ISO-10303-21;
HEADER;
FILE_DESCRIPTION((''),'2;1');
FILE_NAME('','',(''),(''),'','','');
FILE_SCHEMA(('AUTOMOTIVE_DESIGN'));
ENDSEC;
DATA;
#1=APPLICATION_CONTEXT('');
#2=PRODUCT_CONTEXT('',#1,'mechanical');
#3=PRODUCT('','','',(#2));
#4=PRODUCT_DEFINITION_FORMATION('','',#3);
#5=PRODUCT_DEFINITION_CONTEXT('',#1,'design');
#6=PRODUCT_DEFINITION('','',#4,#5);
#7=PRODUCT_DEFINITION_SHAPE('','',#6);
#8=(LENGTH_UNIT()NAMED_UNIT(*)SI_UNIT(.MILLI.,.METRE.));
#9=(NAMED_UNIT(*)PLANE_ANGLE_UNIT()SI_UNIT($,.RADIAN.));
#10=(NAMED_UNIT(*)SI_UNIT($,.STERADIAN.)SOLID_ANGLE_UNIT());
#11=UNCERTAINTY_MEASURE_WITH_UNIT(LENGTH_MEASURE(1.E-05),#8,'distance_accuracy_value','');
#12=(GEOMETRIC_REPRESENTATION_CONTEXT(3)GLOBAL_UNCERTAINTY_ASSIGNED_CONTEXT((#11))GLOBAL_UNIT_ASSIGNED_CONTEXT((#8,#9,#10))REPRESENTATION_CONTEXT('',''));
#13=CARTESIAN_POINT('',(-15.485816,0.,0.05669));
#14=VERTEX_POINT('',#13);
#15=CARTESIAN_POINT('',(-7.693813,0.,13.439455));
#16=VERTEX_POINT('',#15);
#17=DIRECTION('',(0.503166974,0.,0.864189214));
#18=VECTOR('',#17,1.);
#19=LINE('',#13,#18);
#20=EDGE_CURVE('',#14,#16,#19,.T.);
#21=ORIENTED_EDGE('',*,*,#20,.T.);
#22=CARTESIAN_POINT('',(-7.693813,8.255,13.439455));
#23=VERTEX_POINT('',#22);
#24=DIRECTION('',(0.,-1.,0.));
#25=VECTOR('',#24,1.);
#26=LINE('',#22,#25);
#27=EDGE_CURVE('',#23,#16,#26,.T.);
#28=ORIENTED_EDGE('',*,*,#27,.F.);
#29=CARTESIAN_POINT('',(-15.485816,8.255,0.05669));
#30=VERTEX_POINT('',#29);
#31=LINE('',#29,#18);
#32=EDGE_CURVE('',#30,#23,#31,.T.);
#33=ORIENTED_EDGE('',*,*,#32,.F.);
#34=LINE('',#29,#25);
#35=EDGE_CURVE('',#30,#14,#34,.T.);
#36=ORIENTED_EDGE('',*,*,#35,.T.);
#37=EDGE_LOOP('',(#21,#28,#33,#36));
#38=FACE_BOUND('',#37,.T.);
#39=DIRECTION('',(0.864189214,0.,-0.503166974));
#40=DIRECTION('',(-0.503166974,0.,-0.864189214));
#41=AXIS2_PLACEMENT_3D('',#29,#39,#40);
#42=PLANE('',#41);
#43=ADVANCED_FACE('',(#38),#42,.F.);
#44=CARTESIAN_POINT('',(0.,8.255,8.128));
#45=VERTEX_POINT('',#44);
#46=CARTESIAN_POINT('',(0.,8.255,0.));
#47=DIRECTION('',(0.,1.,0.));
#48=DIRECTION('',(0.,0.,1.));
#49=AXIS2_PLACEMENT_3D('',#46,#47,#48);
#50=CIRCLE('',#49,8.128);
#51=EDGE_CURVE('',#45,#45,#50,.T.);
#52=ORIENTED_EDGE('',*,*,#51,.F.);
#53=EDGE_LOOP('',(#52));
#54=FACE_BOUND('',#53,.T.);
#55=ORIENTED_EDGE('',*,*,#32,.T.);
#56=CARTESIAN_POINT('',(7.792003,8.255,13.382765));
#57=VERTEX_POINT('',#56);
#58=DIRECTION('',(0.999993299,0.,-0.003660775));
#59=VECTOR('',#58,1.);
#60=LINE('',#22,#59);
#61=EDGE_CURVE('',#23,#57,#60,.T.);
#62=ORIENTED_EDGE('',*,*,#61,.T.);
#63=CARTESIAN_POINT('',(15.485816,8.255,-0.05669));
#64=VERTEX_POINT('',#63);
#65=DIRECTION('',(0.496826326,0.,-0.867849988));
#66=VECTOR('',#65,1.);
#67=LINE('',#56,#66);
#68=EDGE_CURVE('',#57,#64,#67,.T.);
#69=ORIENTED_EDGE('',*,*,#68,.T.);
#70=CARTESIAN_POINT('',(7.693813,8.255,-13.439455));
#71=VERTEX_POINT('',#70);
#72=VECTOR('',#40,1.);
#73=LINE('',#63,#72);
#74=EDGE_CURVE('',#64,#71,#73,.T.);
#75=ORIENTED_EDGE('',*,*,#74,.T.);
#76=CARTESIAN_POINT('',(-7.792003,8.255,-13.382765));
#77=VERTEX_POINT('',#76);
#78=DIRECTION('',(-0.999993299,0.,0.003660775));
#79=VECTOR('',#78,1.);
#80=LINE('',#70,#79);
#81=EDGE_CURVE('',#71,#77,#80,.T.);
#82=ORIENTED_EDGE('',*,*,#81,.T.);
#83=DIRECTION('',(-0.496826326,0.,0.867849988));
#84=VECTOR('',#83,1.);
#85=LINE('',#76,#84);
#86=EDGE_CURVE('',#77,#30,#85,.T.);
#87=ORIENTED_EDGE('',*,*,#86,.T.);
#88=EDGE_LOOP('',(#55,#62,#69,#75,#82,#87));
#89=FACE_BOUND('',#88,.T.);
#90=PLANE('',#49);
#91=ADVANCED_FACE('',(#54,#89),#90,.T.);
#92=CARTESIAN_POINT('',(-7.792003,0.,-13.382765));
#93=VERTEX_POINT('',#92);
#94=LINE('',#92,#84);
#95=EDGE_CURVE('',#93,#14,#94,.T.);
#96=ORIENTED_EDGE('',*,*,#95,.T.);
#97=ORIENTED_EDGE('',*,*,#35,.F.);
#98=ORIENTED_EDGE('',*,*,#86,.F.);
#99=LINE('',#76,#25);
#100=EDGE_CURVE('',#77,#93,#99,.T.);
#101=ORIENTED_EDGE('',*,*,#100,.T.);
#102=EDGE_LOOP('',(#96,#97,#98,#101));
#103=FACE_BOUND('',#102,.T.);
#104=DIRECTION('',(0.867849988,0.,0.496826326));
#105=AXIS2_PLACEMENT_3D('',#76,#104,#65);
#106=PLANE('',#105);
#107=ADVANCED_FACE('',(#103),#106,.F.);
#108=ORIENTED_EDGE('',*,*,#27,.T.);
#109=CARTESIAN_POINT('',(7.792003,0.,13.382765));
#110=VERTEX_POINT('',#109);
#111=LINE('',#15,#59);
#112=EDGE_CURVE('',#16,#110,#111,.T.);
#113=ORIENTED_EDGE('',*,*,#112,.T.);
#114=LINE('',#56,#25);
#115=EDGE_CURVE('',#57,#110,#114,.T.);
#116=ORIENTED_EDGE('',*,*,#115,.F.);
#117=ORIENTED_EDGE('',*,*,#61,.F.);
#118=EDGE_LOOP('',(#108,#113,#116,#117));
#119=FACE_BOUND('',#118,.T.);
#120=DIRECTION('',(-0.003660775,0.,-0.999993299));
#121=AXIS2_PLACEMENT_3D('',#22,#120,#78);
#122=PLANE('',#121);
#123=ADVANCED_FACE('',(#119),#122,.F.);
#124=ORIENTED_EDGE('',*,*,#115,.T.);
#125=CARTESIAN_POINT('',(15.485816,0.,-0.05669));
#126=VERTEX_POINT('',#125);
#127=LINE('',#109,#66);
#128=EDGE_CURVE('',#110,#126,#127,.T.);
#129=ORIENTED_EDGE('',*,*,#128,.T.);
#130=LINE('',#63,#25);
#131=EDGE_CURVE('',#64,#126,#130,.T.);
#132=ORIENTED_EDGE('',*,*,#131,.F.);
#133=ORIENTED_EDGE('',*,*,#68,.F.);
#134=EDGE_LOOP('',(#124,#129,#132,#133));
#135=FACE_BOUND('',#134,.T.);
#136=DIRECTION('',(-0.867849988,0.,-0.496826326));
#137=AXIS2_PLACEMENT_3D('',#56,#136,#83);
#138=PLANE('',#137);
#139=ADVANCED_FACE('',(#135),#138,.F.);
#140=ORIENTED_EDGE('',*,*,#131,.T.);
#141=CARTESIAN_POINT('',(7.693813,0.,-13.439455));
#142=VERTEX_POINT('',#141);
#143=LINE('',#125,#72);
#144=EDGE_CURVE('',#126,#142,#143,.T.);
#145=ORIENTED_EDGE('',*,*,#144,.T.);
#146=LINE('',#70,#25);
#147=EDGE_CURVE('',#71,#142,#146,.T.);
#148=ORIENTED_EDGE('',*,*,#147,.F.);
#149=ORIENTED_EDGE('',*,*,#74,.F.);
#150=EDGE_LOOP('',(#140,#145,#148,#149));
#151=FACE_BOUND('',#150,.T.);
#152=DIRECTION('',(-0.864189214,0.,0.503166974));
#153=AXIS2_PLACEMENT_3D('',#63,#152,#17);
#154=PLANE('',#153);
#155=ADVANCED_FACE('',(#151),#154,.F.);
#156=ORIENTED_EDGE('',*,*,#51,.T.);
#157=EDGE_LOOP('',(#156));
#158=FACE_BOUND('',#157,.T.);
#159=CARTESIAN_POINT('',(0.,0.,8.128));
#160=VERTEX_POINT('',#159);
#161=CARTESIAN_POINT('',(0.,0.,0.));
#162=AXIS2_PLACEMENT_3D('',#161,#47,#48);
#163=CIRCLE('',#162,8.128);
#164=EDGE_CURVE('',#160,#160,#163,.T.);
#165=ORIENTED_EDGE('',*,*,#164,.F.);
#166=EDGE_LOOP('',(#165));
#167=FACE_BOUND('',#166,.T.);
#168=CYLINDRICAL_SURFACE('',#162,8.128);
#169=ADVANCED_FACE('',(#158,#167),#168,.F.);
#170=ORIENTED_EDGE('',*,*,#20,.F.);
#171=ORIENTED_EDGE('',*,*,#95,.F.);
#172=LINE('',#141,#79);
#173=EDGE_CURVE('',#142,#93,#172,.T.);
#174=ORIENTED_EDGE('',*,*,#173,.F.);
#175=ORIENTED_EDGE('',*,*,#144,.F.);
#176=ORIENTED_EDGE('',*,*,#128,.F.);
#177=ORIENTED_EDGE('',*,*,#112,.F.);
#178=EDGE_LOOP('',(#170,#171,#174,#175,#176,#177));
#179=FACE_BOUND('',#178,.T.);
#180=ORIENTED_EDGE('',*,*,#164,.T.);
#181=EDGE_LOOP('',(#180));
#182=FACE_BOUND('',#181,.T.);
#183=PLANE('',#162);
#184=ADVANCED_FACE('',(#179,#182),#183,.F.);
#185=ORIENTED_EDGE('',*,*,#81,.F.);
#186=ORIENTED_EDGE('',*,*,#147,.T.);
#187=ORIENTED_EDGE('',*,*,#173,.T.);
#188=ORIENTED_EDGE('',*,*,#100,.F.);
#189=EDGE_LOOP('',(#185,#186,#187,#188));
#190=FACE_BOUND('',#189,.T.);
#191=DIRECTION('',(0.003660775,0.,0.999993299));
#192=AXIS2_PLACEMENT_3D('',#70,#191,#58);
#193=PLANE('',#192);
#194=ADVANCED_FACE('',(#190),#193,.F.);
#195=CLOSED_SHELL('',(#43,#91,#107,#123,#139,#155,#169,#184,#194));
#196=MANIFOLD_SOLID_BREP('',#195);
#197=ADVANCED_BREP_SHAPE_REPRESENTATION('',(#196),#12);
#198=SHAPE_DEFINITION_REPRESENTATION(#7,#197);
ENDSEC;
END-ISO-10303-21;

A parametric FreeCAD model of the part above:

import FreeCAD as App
import Part
import Sketcher
Q = App.Units.Quantity

doc = App.newDocument("Part")
body = doc.addObject("PartDesign::Body", "Body")

# Sketch on XZ plane
sketch1 = body.newObject("Sketcher::SketchObject", "Sketch")
sketch1.AttachmentSupport = (doc.getObject("XZ_Plane"), [""])
sketch1.MapMode = "FlatFace"
sketch1.addGeometry(Part.LineSegment(App.Vector(7.693813, -13.439455, 0), App.Vector(-7.792003, -13.382765, 0)), False)
sketch1.addGeometry(Part.LineSegment(App.Vector(-7.792003, -13.382765, 0), App.Vector(-15.485816, 0.05669, 0)), False)
sketch1.addGeometry(Part.LineSegment(App.Vector(-15.485816, 0.05669, 0), App.Vector(-7.693813, 13.439455, 0)), False)
sketch1.addGeometry(Part.LineSegment(App.Vector(-7.693813, 13.439455, 0), App.Vector(7.792003, 13.382765, 0)), False)
sketch1.addGeometry(Part.LineSegment(App.Vector(7.792003, 13.382765, 0), App.Vector(15.485816, -0.05669, 0)), False)
sketch1.addGeometry(Part.LineSegment(App.Vector(15.485816, -0.05669, 0), App.Vector(7.693813, -13.439455, 0)), False)
sketch1.addConstraint(Sketcher.Constraint("Coincident", 0, 2, 1, 1))
sketch1.addConstraint(Sketcher.Constraint("Coincident", 1, 2, 2, 1))
sketch1.addConstraint(Sketcher.Constraint("Coincident", 2, 2, 3, 1))
sketch1.addConstraint(Sketcher.Constraint("Coincident", 3, 2, 4, 1))
sketch1.addConstraint(Sketcher.Constraint("Coincident", 4, 2, 5, 1))
sketch1.addConstraint(Sketcher.Constraint("Coincident", 5, 2, 0, 1))
sketch1.addConstraint(Sketcher.Constraint("Symmetric", 0, 2, 3, 2, -1, 1))
sketch1.addConstraint(Sketcher.Constraint("Symmetric", 1, 2, 4, 2, -1, 1))
sketch1.addConstraint(Sketcher.Constraint("Symmetric", 2, 2, 5, 2, -1, 1))
sketch1.addConstraint(Sketcher.Constraint("Equal", 0, 1))
sketch1.addConstraint(Sketcher.Constraint("Equal", 1, 2))
sketch1.addConstraint(Sketcher.Constraint("Distance", 0, Q("15.48592 mm")))
sketch1.addConstraint(Sketcher.Constraint("DistanceY", -1, 1, 1, 2, Q("0.05669 mm")))
sketch1.addConstraint(Sketcher.Constraint("DistanceX", 0, 2, 2, 2, Q("0.098191 mm")))
sketch1.addConstraint(Sketcher.Constraint("DistanceY", 0, 2, 2, 2, Q("26.82222 mm")))
pad1 = body.newObject("PartDesign::Pad", "Pad")
pad1.Profile = sketch1
pad1.Length = Q("0.325 in")
pad1.Reversed = True

# Sketch on XZ plane
sketch2 = body.newObject("Sketcher::SketchObject", "Sketch001")
sketch2.AttachmentSupport = (doc.getObject("XZ_Plane"), [""])
sketch2.MapMode = "FlatFace"
sketch2.AttachmentOffset = App.Placement(App.Vector(0, 0, -0.325 * 25.4), App.Rotation())
sketch2.addGeometry(Part.Circle(App.Vector(0, 0, 0), App.Vector(0, 0, 1), 8.128), False)
sketch2.addConstraint(Sketcher.Constraint("Coincident", 0, 3, -1, 1))
sketch2.addConstraint(Sketcher.Constraint("Diameter", 0, Q("0.64 in")))
pocket1 = body.newObject("PartDesign::Pocket", "Pocket")
pocket1.Profile = sketch2
pocket1.Type = "ThroughAll"
pocket1.Reversed = True

doc.recompute()
